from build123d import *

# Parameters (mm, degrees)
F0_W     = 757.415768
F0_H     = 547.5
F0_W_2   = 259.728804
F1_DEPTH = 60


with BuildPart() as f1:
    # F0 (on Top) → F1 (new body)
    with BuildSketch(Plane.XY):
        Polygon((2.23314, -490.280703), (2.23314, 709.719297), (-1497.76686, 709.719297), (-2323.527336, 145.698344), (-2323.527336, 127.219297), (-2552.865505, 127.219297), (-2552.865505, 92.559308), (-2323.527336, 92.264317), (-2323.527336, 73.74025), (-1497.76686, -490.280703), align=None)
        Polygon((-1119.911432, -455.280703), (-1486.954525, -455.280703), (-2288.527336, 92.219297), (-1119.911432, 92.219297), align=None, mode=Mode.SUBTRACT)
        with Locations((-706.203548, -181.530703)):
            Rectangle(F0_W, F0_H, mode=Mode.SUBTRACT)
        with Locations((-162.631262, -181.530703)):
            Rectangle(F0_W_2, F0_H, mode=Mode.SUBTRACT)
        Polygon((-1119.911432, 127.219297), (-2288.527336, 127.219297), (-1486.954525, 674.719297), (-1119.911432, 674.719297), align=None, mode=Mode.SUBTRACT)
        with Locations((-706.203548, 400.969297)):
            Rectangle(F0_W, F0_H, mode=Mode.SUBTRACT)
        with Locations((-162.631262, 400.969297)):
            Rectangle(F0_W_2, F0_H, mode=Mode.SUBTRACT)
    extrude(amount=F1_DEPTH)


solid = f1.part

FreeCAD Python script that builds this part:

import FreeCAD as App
import Part
import Sketcher

doc = App.newDocument("Part")
params = doc.addObject("Spreadsheet::Sheet", "Params")
for row, (alias, value) in enumerate([
    ("sketch1_width", "1500 mm"),
    ("sketch1_height", "1200 mm"),
    ("sketch1_length", "1000 mm"),
    ("sketch1_height2", "547.5 mm"),
    ("pad1_length", "60 mm"),
], start=1):
    params.set(f"A{row}", alias)
    params.set(f"B{row}", "=" + value)
    params.setAlias(f"B{row}", alias)

body = doc.addObject("PartDesign::Body", "Body")

sketch1 = body.newObject("Sketcher::SketchObject", "Sketch")
sketch1.AttachmentSupport = (doc.getObject("XY_Plane"), [""])
sketch1.MapMode = "FlatFace"
sketch1.addGeometry([
    Part.LineSegment(App.Vector(2, -490, 0), App.Vector(2, 710, 0)),
    Part.LineSegment(App.Vector(2, 710, 0), App.Vector(-1498, 710, 0)),
    Part.LineSegment(App.Vector(-1498, 710, 0), App.Vector(-2324, 146, 0)),
    Part.LineSegment(App.Vector(-2324, 146, 0), App.Vector(-2324, 127, 0)),
    Part.LineSegment(App.Vector(-2324, 127, 0), App.Vector(-2553, 127, 0)),
    Part.LineSegment(App.Vector(-2553, 127, 0), App.Vector(-2553, 93, 0)),
    Part.LineSegment(App.Vector(-2553, 93, 0), App.Vector(-2324, 92, 0)),
    Part.LineSegment(App.Vector(-2324, 92, 0), App.Vector(-2324, 74, 0)),
    Part.LineSegment(App.Vector(-2324, 74, 0), App.Vector(-1498, -490, 0)),
    Part.LineSegment(App.Vector(-1498, -490, 0), App.Vector(2, -490, 0)),
    Part.LineSegment(App.Vector(-1120, 92, 0), App.Vector(-1120, -455, 0)),
    Part.LineSegment(App.Vector(-1120, -455, 0), App.Vector(-1487, -455, 0)),
    Part.LineSegment(App.Vector(-1487, -455, 0), App.Vector(-2289, 92, 0)),
    Part.LineSegment(App.Vector(-2289, 92, 0), App.Vector(-1120, 92, 0)),
    Part.LineSegment(App.Vector(-327, -455, 0), App.Vector(-1085, -455, 0)),
    Part.LineSegment(App.Vector(-1085, -455, 0), App.Vector(-1085, 92, 0)),
    Part.LineSegment(App.Vector(-1085, 92, 0), App.Vector(-327, 92, 0)),
    Part.LineSegment(App.Vector(-327, 92, 0), App.Vector(-327, -455, 0)),
    Part.LineSegment(App.Vector(-33, -455, 0), App.Vector(-292, -455, 0)),
    Part.LineSegment(App.Vector(-292, -455, 0), App.Vector(-292, 92, 0)),
    Part.LineSegment(App.Vector(-292, 92, 0), App.Vector(-33, 92, 0)),
    Part.LineSegment(App.Vector(-33, 92, 0), App.Vector(-33, -455, 0)),
    Part.LineSegment(App.Vector(-1120, 675, 0), App.Vector(-1120, 127, 0)),
    Part.LineSegment(App.Vector(-1120, 127, 0), App.Vector(-2289, 127, 0)),
    Part.LineSegment(App.Vector(-2289, 127, 0), App.Vector(-1487, 675, 0)),
    Part.LineSegment(App.Vector(-1487, 675, 0), App.Vector(-1120, 675, 0)),
    Part.LineSegment(App.Vector(-327, 127, 0), App.Vector(-1085, 127, 0)),
    Part.LineSegment(App.Vector(-1085, 127, 0), App.Vector(-1085, 675, 0)),
    Part.LineSegment(App.Vector(-1085, 675, 0), App.Vector(-327, 675, 0)),
    Part.LineSegment(App.Vector(-327, 675, 0), App.Vector(-327, 127, 0)),
    Part.LineSegment(App.Vector(-33, 127, 0), App.Vector(-292, 127, 0)),
    Part.LineSegment(App.Vector(-292, 127, 0), App.Vector(-292, 675, 0)),
    Part.LineSegment(App.Vector(-292, 675, 0), App.Vector(-33, 675, 0)),
    Part.LineSegment(App.Vector(-33, 675, 0), App.Vector(-33, 127, 0)),
], False)
sketch1.addConstraint([
    Sketcher.Constraint("Coincident", 0, 2, 1, 1),
    Sketcher.Constraint("Coincident", 1, 2, 2, 1),
    Sketcher.Constraint("Coincident", 2, 2, 3, 1),
    Sketcher.Constraint("Coincident", 3, 2, 4, 1),
    Sketcher.Constraint("Coincident", 4, 2, 5, 1),
    Sketcher.Constraint("Coincident", 5, 2, 6, 1),
    Sketcher.Constraint("Coincident", 6, 2, 7, 1),
    Sketcher.Constraint("Coincident", 7, 2, 8, 1),
    Sketcher.Constraint("Coincident", 8, 2, 9, 1),
    Sketcher.Constraint("Coincident", 9, 2, 0, 1),
    Sketcher.Constraint("Coincident", 10, 2, 11, 1),
    Sketcher.Constraint("Coincident", 11, 2, 12, 1),
    Sketcher.Constraint("Coincident", 12, 2, 13, 1),
    Sketcher.Constraint("Coincident", 13, 2, 10, 1),
    Sketcher.Constraint("Coincident", 14, 2, 15, 1),
    Sketcher.Constraint("Coincident", 15, 2, 16, 1),
    Sketcher.Constraint("Coincident", 16, 2, 17, 1),
    Sketcher.Constraint("Coincident", 17, 2, 14, 1),
    Sketcher.Constraint("Coincident", 18, 2, 19, 1),
    Sketcher.Constraint("Coincident", 19, 2, 20, 1),
    Sketcher.Constraint("Coincident", 20, 2, 21, 1),
    Sketcher.Constraint("Coincident", 21, 2, 18, 1),
    Sketcher.Constraint("Coincident", 22, 2, 23, 1),
    Sketcher.Constraint("Coincident", 23, 2, 24, 1),
    Sketcher.Constraint("Coincident", 24, 2, 25, 1),
    Sketcher.Constraint("Coincident", 25, 2, 22, 1),
    Sketcher.Constraint("Coincident", 26, 2, 27, 1),
    Sketcher.Constraint("Coincident", 27, 2, 28, 1),
    Sketcher.Constraint("Coincident", 28, 2, 29, 1),
    Sketcher.Constraint("Coincident", 29, 2, 26, 1),
    Sketcher.Constraint("Coincident", 30, 2, 31, 1),
    Sketcher.Constraint("Coincident", 31, 2, 32, 1),
    Sketcher.Constraint("Coincident", 32, 2, 33, 1),
    Sketcher.Constraint("Coincident", 33, 2, 30, 1),
    Sketcher.Constraint("Vertical", 0),
    Sketcher.Constraint("Horizontal", 1),
    Sketcher.Constraint("Vertical", 3),
    Sketcher.Constraint("Horizontal", 4),
    Sketcher.Constraint("Vertical", 5),
    Sketcher.Constraint("Vertical", 7),
    Sketcher.Constraint("Horizontal", 9),
    Sketcher.Constraint("Vertical", 10),
    Sketcher.Constraint("Horizontal", 11),
    Sketcher.Constraint("Horizontal", 13),
    Sketcher.Constraint("Horizontal", 14),
    Sketcher.Constraint("Vertical", 15),
    Sketcher.Constraint("Horizontal", 16),
    Sketcher.Constraint("Vertical", 17),
    Sketcher.Constraint("Horizontal", 18),
    Sketcher.Constraint("Vertical", 19),
    Sketcher.Constraint("Horizontal", 20),
    Sketcher.Constraint("Vertical", 21),
    Sketcher.Constraint("Vertical", 22),
    Sketcher.Constraint("Horizontal", 23),
    Sketcher.Constraint("Horizontal", 25),
    Sketcher.Constraint("Horizontal", 26),
    Sketcher.Constraint("Vertical", 27),
    Sketcher.Constraint("Horizontal", 28),
    Sketcher.Constraint("Vertical", 29),
    Sketcher.Constraint("Horizontal", 30),
    Sketcher.Constraint("Vertical", 31),
    Sketcher.Constraint("Horizontal", 32),
    Sketcher.Constraint("Vertical", 33),
    Sketcher.Constraint("Parallel", 8, 12),
    Sketcher.Constraint("Parallel", 2, 24),
    Sketcher.Constraint("Horizontal", 11, 2, 14, 2),
    Sketcher.Constraint("Horizontal", 13, 2, 15, 2),
    Sketcher.Constraint("Horizontal", 17, 2, 18, 2),
    Sketcher.Constraint("Horizontal", 16, 2, 19, 2),
    Sketcher.Constraint("Horizontal", 4, 2, 22, 2),
    Sketcher.Constraint("Horizontal", 23, 2, 26, 2),
    Sketcher.Constraint("Horizontal", 25, 2, 27, 2),
    Sketcher.Constraint("Horizontal", 29, 2, 30, 2),
    Sketcher.Constraint("Horizontal", 28, 2, 31, 2),
    Sketcher.Constraint("Vertical", 3, 2, 6, 2),
    Sketcher.Constraint("Vertical", 1, 2, 8, 2),
    Sketcher.Constraint("Vertical", 13, 2, 22, 2),
    Sketcher.Constraint("Vertical", 12, 2, 23, 2),
    Sketcher.Constraint("Vertical", 11, 2, 24, 2),
    Sketcher.Constraint("Vertical", 15, 2, 26, 2),
    Sketcher.Constraint("Vertical", 17, 2, 28, 2),
    Sketcher.Constraint("Vertical", 19, 2, 30, 2),
    Sketcher.Constraint("Vertical", 21, 2, 32, 2),
    Sketcher.Constraint("Equal", 21, 22),
    Sketcher.Constraint("DistanceX", 1, 2, 1, 1, 1500.0),
    Sketcher.Constraint("DistanceY", 0, 1, 0, 2, 1200.0),
    Sketcher.Constraint("Distance", 2, 1000.0),
    Sketcher.Constraint("DistanceY", 10, 2, 10, 1, 547.5),
    Sketcher.Constraint("DistanceY", 8, 2, 10, 2, 35.0),
    Sketcher.Constraint("DistanceX", 6, 2, 12, 2, 35.0),
    Sketcher.Constraint("DistanceY", 12, 2, 3, 2, 35.0),
    Sketcher.Constraint("DistanceX", 10, 2, 14, 2, 35.0),
    Sketcher.Constraint("DistanceX", 17, 2, 18, 2, 35.0),
    Sketcher.Constraint("DistanceX", 20, 2, 9, 2, 35.0),
    Sketcher.Constraint("DistanceX", 4, 2, 4, 1, 229.338169),
    Sketcher.Constraint("DistanceX", 14, 2, 14, 1, 757.415768),
    Sketcher.Constraint("DistanceY", 5, 2, 5, 1, 34.659989),
    Sketcher.Constraint("Distance", 12, 970.708618),
    Sketcher.Constraint("DistanceX", 11, 2, 11, 1, 367.043093),
    Sketcher.Constraint("DistanceY", 7, 2, 7, 1, 18.524067),
    Sketcher.Constraint("DistanceX", -1, 1, 0, 2, 2.23314),
    Sketcher.Constraint("DistanceY", -1, 1, 5, 2, 92.559308),
])
sketch1.setExpression("Constraints[84]", "Params.sketch1_width")
sketch1.setExpression("Constraints[85]", "Params.sketch1_height")
sketch1.setExpression("Constraints[86]", "Params.sketch1_length")
sketch1.setExpression("Constraints[87]", "Params.sketch1_height2")
pad1 = body.newObject("PartDesign::Pad", "Pad")
pad1.Profile = sketch1
pad1.setExpression("Length", "Params.pad1_length")

doc.recompute()
